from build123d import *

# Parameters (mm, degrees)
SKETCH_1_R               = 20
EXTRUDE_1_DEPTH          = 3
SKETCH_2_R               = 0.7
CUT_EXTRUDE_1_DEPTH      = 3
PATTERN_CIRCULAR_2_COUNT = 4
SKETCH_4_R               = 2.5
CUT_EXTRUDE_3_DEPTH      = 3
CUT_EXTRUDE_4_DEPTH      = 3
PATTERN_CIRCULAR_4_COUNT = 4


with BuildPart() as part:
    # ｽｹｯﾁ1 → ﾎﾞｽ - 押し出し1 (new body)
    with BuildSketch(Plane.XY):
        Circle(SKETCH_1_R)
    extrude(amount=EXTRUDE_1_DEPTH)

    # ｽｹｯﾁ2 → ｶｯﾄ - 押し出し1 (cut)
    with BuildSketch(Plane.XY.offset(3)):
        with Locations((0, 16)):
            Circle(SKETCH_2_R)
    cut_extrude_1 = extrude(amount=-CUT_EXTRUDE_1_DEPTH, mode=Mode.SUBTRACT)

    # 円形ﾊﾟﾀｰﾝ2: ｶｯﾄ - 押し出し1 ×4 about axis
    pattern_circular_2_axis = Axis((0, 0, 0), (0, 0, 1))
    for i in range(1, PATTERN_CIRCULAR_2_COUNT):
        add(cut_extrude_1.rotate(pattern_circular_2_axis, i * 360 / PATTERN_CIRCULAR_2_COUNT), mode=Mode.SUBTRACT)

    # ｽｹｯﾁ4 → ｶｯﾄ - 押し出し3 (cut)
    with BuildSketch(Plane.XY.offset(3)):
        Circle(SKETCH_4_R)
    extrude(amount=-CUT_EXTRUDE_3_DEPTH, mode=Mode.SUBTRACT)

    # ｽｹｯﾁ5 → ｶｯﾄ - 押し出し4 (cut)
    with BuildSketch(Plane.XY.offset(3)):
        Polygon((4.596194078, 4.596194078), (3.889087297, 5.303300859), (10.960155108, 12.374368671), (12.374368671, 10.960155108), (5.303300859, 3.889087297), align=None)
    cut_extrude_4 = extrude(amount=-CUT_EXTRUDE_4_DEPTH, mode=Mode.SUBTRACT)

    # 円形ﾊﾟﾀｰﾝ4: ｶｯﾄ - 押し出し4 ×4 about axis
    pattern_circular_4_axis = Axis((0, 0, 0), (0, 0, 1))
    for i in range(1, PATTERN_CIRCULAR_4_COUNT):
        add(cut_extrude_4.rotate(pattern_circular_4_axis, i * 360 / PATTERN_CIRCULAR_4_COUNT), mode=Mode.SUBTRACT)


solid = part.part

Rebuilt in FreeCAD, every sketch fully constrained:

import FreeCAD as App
import Part
import Sketcher

V = App.Vector
Q = App.Units.Quantity


def add_polygon(sketch, points):
    """Adds a closed chain of lines whose ends are joined by coincident constraints."""
    first, n = sketch.GeometryCount, len(points)
    for a, b in zip(points, points[1:] + points[:1]):
        sketch.addGeometry(Part.LineSegment(App.Vector(*a, 0), App.Vector(*b, 0)), False)
    for i in range(n):
        sketch.addConstraint(Sketcher.Constraint("Coincident", first + i, 2, first + (i + 1) % n, 1))

doc = App.newDocument("Part")
body = doc.addObject("PartDesign::Body", "Body")

# Sketch on XY plane
sketch1 = body.newObject("Sketcher::SketchObject", "Sketch")
sketch1.AttachmentSupport = (doc.getObject("XY_Plane"), [""])
sketch1.MapMode = "FlatFace"
sketch1.addGeometry(Part.Circle(V(0, 0, 0), V(0, 0, 1), 20), False)
sketch1.addConstraint([
    Sketcher.Constraint("Coincident", 0, 3, -1, 1),
    Sketcher.Constraint("Diameter", 0, Q("40 mm")),
])
pad1 = body.newObject("PartDesign::Pad", "Pad")
pad1.Profile = sketch1
pad1.Length = 3

# Sketch on XY plane
sketch2 = body.newObject("Sketcher::SketchObject", "Sketch001")
sketch2.AttachmentSupport = (doc.getObject("XY_Plane"), [""])
sketch2.MapMode = "FlatFace"
sketch2.AttachmentOffset = App.Placement(V(0, 0, 3), App.Rotation())
sketch2.addGeometry(Part.Circle(V(0, 16, 0), V(0, 0, 1), 0.7), False)
sketch2.addConstraint([
    Sketcher.Constraint("PointOnObject", 0, 3, -2),
    Sketcher.Constraint("Diameter", 0, Q("1.4 mm")),
    Sketcher.Constraint("DistanceY", -1, 1, 0, 3, Q("16 mm")),
])
pocket1 = body.newObject("PartDesign::Pocket", "Pocket")
pocket1.Profile = sketch2
pocket1.Length = 3
doc.recompute()

polarpattern = body.newObject("PartDesign::PolarPattern", "PolarPattern")
polarpattern.Originals = [pocket1]
polarpattern.Axis = (doc.getObject("Z_Axis"), [""])
polarpattern.Angle = 360
polarpattern.Occurrences = 4
body.Tip = polarpattern

# Sketch on XY plane
sketch3 = body.newObject("Sketcher::SketchObject", "Sketch002")
sketch3.AttachmentSupport = (doc.getObject("XY_Plane"), [""])
sketch3.MapMode = "FlatFace"
sketch3.AttachmentOffset = App.Placement(V(0, 0, 3), App.Rotation())
sketch3.addGeometry(Part.Circle(V(0, 0, 0), V(0, 0, 1), 2.5), False)
sketch3.addConstraint([
    Sketcher.Constraint("Coincident", 0, 3, -1, 1),
    Sketcher.Constraint("Diameter", 0, Q("5 mm")),
])
pocket2 = body.newObject("PartDesign::Pocket", "Pocket001")
pocket2.Profile = sketch3
pocket2.Length = 3

# Sketch on XY plane
sketch4 = body.newObject("Sketcher::SketchObject", "Sketch003")
sketch4.AttachmentSupport = (doc.getObject("XY_Plane"), [""])
sketch4.MapMode = "FlatFace"
sketch4.AttachmentOffset = App.Placement(V(0, 0, 3), App.Rotation())
add_polygon(sketch4, [(3.9, 5.3), (5.3, 3.9), (12.4, 11), (11, 12.4)])  # lines 0-3
sketch4.addConstraint([
    Sketcher.Constraint("Perpendicular", 0, 1),
    Sketcher.Constraint("Perpendicular", 1, 2),
    Sketcher.Constraint("Perpendicular", 2, 3),
    Sketcher.Constraint("Angle", 0, Q("-45 deg")),
    Sketcher.Constraint("Distance", 0, Q("2 mm")),
    Sketcher.Constraint("Distance", 1, Q("10 mm")),
    Sketcher.Constraint("DistanceX", -1, 1, 0, 2, Q("5.303301 mm")),
    Sketcher.Constraint("DistanceY", -1, 1, 3, 2, Q("5.303301 mm")),
])
pocket3 = body.newObject("PartDesign::Pocket", "Pocket002")
pocket3.Profile = sketch4
pocket3.Length = 3
doc.recompute()

polarpattern2 = body.newObject("PartDesign::PolarPattern", "PolarPattern001")
polarpattern2.Originals = [pocket3]
polarpattern2.Axis = (doc.getObject("Z_Axis"), [""])
polarpattern2.Angle = 360
polarpattern2.Occurrences = 4
body.Tip = polarpattern2

doc.recompute()
